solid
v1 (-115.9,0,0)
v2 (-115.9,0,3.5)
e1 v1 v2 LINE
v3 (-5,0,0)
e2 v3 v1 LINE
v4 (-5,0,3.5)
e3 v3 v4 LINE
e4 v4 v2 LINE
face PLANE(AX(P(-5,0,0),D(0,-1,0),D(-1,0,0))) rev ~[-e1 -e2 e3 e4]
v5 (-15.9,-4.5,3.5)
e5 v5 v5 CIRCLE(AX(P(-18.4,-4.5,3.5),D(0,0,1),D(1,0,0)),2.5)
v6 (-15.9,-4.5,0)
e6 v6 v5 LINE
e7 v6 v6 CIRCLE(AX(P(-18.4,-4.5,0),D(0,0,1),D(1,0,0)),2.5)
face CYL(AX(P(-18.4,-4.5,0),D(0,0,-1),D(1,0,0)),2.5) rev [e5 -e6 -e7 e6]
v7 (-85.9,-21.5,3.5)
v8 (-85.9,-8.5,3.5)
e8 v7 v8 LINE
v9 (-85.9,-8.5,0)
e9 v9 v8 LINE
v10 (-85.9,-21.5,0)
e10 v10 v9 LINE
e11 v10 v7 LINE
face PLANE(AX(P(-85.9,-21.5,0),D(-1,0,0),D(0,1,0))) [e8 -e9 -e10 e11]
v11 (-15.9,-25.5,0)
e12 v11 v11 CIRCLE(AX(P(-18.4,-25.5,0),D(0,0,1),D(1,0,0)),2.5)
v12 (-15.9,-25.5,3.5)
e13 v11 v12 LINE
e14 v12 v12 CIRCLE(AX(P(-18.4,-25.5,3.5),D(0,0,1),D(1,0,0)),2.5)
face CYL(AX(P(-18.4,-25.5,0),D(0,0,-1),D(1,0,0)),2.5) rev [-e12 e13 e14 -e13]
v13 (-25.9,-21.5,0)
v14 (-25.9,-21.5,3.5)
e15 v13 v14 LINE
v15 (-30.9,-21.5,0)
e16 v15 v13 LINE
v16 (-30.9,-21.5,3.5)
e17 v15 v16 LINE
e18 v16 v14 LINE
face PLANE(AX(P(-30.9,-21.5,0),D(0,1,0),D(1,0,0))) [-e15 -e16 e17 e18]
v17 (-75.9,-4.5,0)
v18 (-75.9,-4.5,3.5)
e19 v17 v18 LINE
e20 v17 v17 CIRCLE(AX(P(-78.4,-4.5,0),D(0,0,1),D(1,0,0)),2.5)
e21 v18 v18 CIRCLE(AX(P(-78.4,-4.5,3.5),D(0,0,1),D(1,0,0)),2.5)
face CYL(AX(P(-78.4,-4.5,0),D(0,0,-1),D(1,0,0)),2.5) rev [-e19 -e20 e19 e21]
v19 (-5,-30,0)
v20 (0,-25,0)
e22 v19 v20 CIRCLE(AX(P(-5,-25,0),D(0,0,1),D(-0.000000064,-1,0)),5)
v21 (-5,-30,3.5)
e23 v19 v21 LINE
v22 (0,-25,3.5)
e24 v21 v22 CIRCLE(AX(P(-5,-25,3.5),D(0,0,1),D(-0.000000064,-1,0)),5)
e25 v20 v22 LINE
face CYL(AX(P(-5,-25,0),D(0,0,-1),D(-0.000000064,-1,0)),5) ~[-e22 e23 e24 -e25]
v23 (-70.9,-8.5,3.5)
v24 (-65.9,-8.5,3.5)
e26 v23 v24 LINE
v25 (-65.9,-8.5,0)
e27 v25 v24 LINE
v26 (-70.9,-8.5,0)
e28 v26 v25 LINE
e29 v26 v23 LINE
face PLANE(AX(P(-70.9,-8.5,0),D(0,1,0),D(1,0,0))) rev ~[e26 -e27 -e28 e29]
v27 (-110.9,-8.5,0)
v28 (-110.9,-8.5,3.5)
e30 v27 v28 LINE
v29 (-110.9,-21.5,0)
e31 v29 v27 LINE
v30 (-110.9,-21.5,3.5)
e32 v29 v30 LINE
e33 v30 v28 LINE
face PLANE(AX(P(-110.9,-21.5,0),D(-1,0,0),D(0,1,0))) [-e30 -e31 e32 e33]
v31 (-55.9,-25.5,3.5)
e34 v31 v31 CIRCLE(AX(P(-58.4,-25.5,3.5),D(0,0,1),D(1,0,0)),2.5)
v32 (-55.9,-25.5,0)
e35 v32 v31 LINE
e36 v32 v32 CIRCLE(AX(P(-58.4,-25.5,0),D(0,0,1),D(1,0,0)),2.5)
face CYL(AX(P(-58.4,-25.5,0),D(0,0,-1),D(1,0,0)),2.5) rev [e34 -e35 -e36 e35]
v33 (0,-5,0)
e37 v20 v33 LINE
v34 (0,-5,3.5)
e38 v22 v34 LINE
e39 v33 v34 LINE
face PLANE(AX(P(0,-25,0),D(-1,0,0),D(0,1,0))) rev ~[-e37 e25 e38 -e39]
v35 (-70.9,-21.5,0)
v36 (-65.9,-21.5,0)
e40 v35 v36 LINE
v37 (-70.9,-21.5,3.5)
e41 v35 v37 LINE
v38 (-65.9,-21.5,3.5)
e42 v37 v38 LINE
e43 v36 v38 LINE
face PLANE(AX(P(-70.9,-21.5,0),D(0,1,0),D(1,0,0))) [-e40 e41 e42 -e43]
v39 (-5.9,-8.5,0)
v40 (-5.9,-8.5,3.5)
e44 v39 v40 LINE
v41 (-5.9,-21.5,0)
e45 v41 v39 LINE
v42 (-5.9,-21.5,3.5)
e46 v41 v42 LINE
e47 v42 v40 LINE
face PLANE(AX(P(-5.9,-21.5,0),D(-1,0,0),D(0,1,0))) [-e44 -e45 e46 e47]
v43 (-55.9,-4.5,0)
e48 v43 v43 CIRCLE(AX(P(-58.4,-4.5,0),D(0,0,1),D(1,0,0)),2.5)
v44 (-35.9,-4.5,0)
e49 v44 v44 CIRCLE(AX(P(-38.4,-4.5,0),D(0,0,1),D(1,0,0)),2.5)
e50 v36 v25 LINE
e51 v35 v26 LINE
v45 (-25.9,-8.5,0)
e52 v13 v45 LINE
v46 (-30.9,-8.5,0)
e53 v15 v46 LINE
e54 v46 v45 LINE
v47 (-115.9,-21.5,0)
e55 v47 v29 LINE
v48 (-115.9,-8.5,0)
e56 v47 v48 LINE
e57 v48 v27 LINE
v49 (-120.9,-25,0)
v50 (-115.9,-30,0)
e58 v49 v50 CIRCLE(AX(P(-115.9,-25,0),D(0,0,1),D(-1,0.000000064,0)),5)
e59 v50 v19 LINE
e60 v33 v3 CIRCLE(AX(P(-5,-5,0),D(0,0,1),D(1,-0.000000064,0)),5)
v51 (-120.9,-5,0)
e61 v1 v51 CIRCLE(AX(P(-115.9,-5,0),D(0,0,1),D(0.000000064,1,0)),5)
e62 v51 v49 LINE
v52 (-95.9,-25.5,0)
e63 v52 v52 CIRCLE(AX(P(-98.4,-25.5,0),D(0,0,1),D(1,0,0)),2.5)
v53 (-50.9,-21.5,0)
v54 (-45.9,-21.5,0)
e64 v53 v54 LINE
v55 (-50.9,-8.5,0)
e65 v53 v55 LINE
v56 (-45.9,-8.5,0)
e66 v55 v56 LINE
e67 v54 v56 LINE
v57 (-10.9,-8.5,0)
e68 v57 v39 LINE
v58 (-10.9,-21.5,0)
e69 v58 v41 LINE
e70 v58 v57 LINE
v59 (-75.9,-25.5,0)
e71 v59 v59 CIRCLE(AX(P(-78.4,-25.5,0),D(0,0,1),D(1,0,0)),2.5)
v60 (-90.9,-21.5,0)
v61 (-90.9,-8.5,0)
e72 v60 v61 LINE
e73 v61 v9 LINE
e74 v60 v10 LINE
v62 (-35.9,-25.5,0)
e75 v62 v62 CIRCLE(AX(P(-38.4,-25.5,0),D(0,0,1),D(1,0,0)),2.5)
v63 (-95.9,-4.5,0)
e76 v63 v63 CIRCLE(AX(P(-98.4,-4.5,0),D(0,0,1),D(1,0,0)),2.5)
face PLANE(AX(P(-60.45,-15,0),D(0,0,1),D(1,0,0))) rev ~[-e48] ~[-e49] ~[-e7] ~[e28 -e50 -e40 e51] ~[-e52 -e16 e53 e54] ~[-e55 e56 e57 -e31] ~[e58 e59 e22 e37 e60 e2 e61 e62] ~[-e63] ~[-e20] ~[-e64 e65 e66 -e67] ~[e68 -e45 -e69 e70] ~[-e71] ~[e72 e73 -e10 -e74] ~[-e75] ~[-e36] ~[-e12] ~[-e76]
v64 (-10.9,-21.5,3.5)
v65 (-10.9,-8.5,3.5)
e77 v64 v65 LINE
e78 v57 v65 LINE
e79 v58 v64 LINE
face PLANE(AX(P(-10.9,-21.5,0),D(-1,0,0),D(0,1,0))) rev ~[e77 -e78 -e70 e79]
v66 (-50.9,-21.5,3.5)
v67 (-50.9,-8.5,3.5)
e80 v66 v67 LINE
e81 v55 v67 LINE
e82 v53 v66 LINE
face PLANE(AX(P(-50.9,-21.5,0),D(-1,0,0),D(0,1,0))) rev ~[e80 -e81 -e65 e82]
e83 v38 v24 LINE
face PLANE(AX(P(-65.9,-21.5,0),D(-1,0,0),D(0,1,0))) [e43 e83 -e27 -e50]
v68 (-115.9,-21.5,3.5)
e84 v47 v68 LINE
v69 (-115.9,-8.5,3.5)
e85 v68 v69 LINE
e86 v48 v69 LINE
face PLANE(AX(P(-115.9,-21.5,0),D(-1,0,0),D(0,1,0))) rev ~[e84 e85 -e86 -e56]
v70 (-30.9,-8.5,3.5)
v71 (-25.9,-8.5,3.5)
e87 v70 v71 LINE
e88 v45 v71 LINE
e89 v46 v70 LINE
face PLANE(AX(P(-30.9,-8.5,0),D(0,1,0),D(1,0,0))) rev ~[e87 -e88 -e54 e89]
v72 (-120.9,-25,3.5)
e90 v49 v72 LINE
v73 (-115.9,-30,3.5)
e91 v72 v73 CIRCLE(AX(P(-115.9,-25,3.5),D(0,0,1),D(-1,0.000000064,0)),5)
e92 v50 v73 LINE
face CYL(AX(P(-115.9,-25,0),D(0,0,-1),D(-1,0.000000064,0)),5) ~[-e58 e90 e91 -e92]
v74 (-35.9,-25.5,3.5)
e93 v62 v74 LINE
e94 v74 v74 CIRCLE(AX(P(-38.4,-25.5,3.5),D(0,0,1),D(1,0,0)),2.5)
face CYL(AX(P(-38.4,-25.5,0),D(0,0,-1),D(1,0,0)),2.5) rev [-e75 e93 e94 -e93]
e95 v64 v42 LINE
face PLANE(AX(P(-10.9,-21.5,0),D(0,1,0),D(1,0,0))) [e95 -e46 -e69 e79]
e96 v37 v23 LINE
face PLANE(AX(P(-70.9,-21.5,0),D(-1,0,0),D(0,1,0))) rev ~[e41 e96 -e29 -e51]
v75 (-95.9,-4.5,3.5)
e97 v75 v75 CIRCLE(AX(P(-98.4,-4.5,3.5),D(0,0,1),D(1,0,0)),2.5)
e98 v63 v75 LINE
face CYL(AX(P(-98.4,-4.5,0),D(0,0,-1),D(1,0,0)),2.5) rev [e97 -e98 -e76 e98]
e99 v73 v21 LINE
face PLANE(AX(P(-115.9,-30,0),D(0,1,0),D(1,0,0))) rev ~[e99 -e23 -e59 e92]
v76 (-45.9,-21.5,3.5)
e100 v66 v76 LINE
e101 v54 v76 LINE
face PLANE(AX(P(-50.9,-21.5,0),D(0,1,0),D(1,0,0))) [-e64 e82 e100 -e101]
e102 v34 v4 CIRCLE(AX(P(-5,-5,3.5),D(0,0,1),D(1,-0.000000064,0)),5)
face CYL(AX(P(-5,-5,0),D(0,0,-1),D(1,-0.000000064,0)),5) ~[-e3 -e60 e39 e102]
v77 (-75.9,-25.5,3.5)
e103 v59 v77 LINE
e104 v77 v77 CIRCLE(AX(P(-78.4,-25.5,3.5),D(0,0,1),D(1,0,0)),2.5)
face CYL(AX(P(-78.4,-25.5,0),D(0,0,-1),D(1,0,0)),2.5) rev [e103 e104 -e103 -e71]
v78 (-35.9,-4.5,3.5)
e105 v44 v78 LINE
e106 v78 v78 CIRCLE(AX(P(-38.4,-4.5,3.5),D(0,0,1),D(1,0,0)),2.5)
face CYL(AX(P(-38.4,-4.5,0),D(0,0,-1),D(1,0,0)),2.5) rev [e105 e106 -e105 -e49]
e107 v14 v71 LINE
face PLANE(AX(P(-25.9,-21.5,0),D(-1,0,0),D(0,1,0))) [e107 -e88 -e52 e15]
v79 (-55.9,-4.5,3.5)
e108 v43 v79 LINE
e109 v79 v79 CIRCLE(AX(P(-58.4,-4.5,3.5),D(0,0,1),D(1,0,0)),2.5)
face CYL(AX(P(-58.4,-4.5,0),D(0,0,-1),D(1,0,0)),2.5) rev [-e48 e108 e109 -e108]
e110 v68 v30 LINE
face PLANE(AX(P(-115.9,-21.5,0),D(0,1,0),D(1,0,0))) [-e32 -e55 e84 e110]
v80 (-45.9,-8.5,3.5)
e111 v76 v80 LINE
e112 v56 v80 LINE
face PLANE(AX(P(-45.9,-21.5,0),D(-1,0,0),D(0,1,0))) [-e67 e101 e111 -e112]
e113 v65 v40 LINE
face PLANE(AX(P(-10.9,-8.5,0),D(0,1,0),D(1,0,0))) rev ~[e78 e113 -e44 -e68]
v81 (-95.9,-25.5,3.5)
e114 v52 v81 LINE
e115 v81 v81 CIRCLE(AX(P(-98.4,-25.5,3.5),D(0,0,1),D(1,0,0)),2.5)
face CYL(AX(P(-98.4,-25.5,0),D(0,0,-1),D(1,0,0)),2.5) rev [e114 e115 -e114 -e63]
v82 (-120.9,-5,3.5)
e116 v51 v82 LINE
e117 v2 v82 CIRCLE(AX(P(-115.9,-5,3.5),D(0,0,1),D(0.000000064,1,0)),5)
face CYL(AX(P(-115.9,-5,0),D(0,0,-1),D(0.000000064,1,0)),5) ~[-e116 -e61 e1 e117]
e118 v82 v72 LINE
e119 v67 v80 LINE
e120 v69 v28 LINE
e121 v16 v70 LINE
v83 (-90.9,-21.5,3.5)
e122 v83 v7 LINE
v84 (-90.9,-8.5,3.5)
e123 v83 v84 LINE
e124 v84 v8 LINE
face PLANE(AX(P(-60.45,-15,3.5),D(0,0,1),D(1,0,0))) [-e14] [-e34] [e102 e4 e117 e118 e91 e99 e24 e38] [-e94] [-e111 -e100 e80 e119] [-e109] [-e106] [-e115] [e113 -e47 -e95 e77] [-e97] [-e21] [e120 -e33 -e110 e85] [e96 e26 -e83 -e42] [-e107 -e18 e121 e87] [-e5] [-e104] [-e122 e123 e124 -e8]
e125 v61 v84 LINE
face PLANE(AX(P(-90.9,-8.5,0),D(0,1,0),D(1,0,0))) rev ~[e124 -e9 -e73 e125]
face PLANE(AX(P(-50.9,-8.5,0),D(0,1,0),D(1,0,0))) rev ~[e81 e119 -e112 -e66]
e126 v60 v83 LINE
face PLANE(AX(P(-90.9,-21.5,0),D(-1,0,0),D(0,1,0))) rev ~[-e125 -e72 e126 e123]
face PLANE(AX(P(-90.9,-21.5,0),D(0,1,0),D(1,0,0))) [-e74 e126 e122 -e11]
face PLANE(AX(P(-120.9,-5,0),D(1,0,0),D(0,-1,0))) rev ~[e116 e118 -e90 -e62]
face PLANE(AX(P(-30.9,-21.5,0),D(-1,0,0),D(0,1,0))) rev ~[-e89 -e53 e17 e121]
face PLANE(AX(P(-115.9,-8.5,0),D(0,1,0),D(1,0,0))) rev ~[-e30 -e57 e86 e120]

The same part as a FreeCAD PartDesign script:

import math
import FreeCAD as App
import Part
import Sketcher
Q = App.Units.Quantity


def add_polygon(sketch, points):
    """Adds a closed chain of lines whose ends are joined by coincident constraints."""
    first, n = sketch.GeometryCount, len(points)
    for a, b in zip(points, points[1:] + points[:1]):
        sketch.addGeometry(Part.LineSegment(App.Vector(*a, 0), App.Vector(*b, 0)), False)
    for i in range(n):
        sketch.addConstraint(Sketcher.Constraint("Coincident", first + i, 2, first + (i + 1) % n, 1))

doc = App.newDocument("Part")
body = doc.addObject("PartDesign::Body", "Body")

sketch1 = body.newObject("Sketcher::SketchObject", "Sketch")
sketch1.AttachmentSupport = (doc.getObject("XY_Plane"), [""])
sketch1.MapMode = "FlatFace"
sketch1.addGeometry(Part.ArcOfCircle(Part.Circle(App.Vector(-5, -5, 0), App.Vector(0, 0, 1), 5), math.radians(0), math.radians(90)), False)
sketch1.addGeometry(Part.LineSegment(App.Vector(-5, 0, 0), App.Vector(-115.9, 0, 0)), False)
sketch1.addGeometry(Part.ArcOfCircle(Part.Circle(App.Vector(-115.9, -5, 0), App.Vector(0, 0, 1), 5), math.radians(90), math.radians(180)), False)
sketch1.addGeometry(Part.LineSegment(App.Vector(-120.9, -5, 0), App.Vector(-120.9, -25, 0)), False)
sketch1.addGeometry(Part.ArcOfCircle(Part.Circle(App.Vector(-115.9, -25, 0), App.Vector(0, 0, 1), 5), math.radians(180), math.radians(270)), False)
sketch1.addGeometry(Part.LineSegment(App.Vector(-115.9, -30, 0), App.Vector(-5, -30, 0)), False)
sketch1.addGeometry(Part.ArcOfCircle(Part.Circle(App.Vector(-5, -25, 0), App.Vector(0, 0, 1), 5), math.radians(-90), math.radians(0)), False)
sketch1.addGeometry(Part.LineSegment(App.Vector(0, -25, 0), App.Vector(0, -5, 0)), False)
sketch1.addGeometry(Part.Circle(App.Vector(-98.4, -25.5, 0), App.Vector(0, 0, 1), 2.5), False)
sketch1.addGeometry(Part.Circle(App.Vector(-78.4, -25.5, 0), App.Vector(0, 0, 1), 2.5), False)
sketch1.addGeometry(Part.Circle(App.Vector(-58.4, -25.5, 0), App.Vector(0, 0, 1), 2.5), False)
sketch1.addGeometry(Part.Circle(App.Vector(-38.4, -25.5, 0), App.Vector(0, 0, 1), 2.5), False)
sketch1.addGeometry(Part.Circle(App.Vector(-18.4, -25.5, 0), App.Vector(0, 0, 1), 2.5), False)
add_polygon(sketch1, [(-110.9, -21.5), (-115.9, -21.5), (-115.9, -8.5), (-110.9, -8.5)])
add_polygon(sketch1, [(-85.9, -21.5), (-90.9, -21.5), (-90.9, -8.5), (-85.9, -8.5)])
add_polygon(sketch1, [(-65.9, -21.5), (-70.9, -21.5), (-70.9, -8.5), (-65.9, -8.5)])
sketch1.addGeometry(Part.Circle(App.Vector(-98.4, -4.5, 0), App.Vector(0, 0, 1), 2.5), False)
sketch1.addGeometry(Part.Circle(App.Vector(-78.4, -4.5, 0), App.Vector(0, 0, 1), 2.5), False)
add_polygon(sketch1, [(-45.9, -21.5), (-50.9, -21.5), (-50.9, -8.5), (-45.9, -8.5)])
add_polygon(sketch1, [(-25.9, -21.5), (-30.9, -21.5), (-30.9, -8.5), (-25.9, -8.5)])
add_polygon(sketch1, [(-5.9, -21.5), (-10.9, -21.5), (-10.9, -8.5), (-5.9, -8.5)])
sketch1.addGeometry(Part.Circle(App.Vector(-58.4, -4.5, 0), App.Vector(0, 0, 1), 2.5), False)
sketch1.addGeometry(Part.Circle(App.Vector(-38.4, -4.5, 0), App.Vector(0, 0, 1), 2.5), False)
sketch1.addGeometry(Part.Circle(App.Vector(-18.4, -4.5, 0), App.Vector(0, 0, 1), 2.5), False)
sketch1.addConstraint([
    Sketcher.Constraint("Tangent", 0, 2, 1, 1),
    Sketcher.Constraint("Tangent", 1, 2, 2, 1),
    Sketcher.Constraint("Tangent", 2, 2, 3, 1),
    Sketcher.Constraint("Tangent", 3, 2, 4, 1),
    Sketcher.Constraint("Tangent", 4, 2, 5, 1),
    Sketcher.Constraint("Tangent", 5, 2, 6, 1),
    Sketcher.Constraint("Tangent", 6, 2, 7, 1),
    Sketcher.Constraint("Tangent", 7, 2, 0, 1),
    Sketcher.Constraint("Horizontal", 1),
    Sketcher.Constraint("Vertical", 3),
    Sketcher.Constraint("Horizontal", 5),
    Sketcher.Constraint("Vertical", 7),
    Sketcher.Constraint("Horizontal", 13),
    Sketcher.Constraint("Vertical", 14),
    Sketcher.Constraint("Horizontal", 15),
    Sketcher.Constraint("Vertical", 16),
    Sketcher.Constraint("Horizontal", 17),
    Sketcher.Constraint("Vertical", 18),
    Sketcher.Constraint("Horizontal", 19),
    Sketcher.Constraint("Vertical", 20),
    Sketcher.Constraint("Horizontal", 21),
    Sketcher.Constraint("Vertical", 22),
    Sketcher.Constraint("Horizontal", 23),
    Sketcher.Constraint("Vertical", 24),
    Sketcher.Constraint("Horizontal", 27),
    Sketcher.Constraint("Vertical", 28),
    Sketcher.Constraint("Horizontal", 29),
    Sketcher.Constraint("Vertical", 30),
    Sketcher.Constraint("Horizontal", 31),
    Sketcher.Constraint("Vertical", 32),
    Sketcher.Constraint("Horizontal", 33),
    Sketcher.Constraint("Vertical", 34),
    Sketcher.Constraint("Horizontal", 35),
    Sketcher.Constraint("Vertical", 36),
    Sketcher.Constraint("Horizontal", 37),
    Sketcher.Constraint("Vertical", 38),
    Sketcher.Constraint("Equal", 0, 2),
    Sketcher.Constraint("Equal", 2, 4),
    Sketcher.Constraint("Equal", 4, 6),
    Sketcher.Constraint("Equal", 8, 9),
    Sketcher.Constraint("Equal", 9, 10),
    Sketcher.Constraint("Equal", 10, 11),
    Sketcher.Constraint("Equal", 11, 12),
    Sketcher.Constraint("Equal", 12, 25),
    Sketcher.Constraint("Equal", 25, 26),
    Sketcher.Constraint("Equal", 26, 39),
    Sketcher.Constraint("Equal", 39, 40),
    Sketcher.Constraint("Equal", 40, 41),
    Sketcher.Constraint("PointOnObject", 0, 2, -1),
    Sketcher.Constraint("PointOnObject", 6, 2, -2),
    Sketcher.Constraint("Horizontal", 8, 3, 9, 3),
    Sketcher.Constraint("Horizontal", 9, 3, 10, 3),
    Sketcher.Constraint("Horizontal", 10, 3, 11, 3),
    Sketcher.Constraint("Horizontal", 11, 3, 12, 3),
    Sketcher.Constraint("Horizontal", 25, 3, 26, 3),
    Sketcher.Constraint("Horizontal", 26, 3, 39, 3),
    Sketcher.Constraint("Horizontal", 39, 3, 40, 3),
    Sketcher.Constraint("Horizontal", 40, 3, 41, 3),
    Sketcher.Constraint("Horizontal", 16, 2, 17, 2),
    Sketcher.Constraint("Horizontal", 15, 2, 18, 2),
    Sketcher.Constraint("Horizontal", 20, 2, 21, 2),
    Sketcher.Constraint("Horizontal", 19, 2, 22, 2),
    Sketcher.Constraint("Horizontal", 24, 2, 27, 2),
    Sketcher.Constraint("Horizontal", 23, 2, 28, 2),
    Sketcher.Constraint("Horizontal", 30, 2, 31, 2),
    Sketcher.Constraint("Horizontal", 29, 2, 32, 2),
    Sketcher.Constraint("Horizontal", 34, 2, 35, 2),
    Sketcher.Constraint("Horizontal", 33, 2, 36, 2),
    Sketcher.Constraint("Vertical", 8, 3, 25, 3),
    Sketcher.Constraint("Vertical", 9, 3, 26, 3),
    Sketcher.Constraint("Vertical", 10, 3, 39, 3),
    Sketcher.Constraint("Vertical", 11, 3, 40, 3),
    Sketcher.Constraint("Vertical", 12, 3, 41, 3),
    Sketcher.Constraint("Vertical", 4, 2, 13, 2),
    Sketcher.Constraint("Equal", 15, 17),
    Sketcher.Constraint("Equal", 19, 21),
    Sketcher.Constraint("Equal", 23, 27),
    Sketcher.Constraint("Equal", 29, 31),
    Sketcher.Constraint("Equal", 33, 35),
    Sketcher.Constraint("Diameter", 8, Q("5 mm")),
    Sketcher.Constraint("Radius", 0, Q("5 mm")),
    Sketcher.Constraint("DistanceX", 13, 2, 13, 1, Q("5 mm")),
    Sketcher.Constraint("DistanceY", 3, 2, 3, 1, Q("20 mm")),
    Sketcher.Constraint("DistanceY", 14, 1, 14, 2, Q("13 mm")),
    Sketcher.Constraint("DistanceX", 1, 2, 1, 1, Q("110.9 mm")),
    Sketcher.Constraint("DistanceX", 8, 3, 9, 3, Q("20 mm")),
    Sketcher.Constraint("DistanceX", 9, 3, 10, 3, Q("20 mm")),
    Sketcher.Constraint("DistanceX", 10, 3, 11, 3, Q("20 mm")),
    Sketcher.Constraint("DistanceX", 11, 3, 12, 3, Q("20 mm")),
    Sketcher.Constraint("DistanceY", 8, 3, 25, 3, Q("21 mm")),
    Sketcher.Constraint("DistanceY", 15, 2, 25, 3, Q("4 mm")),
    Sketcher.Constraint("DistanceX", 16, 2, 17, 2, Q("20 mm")),
    Sketcher.Constraint("DistanceX", 20, 2, 21, 2, Q("15 mm")),
    Sketcher.Constraint("DistanceX", 24, 2, 27, 2, Q("15 mm")),
    Sketcher.Constraint("DistanceX", 30, 2, 31, 2, Q("15 mm")),
    Sketcher.Constraint("DistanceX", 34, 2, 35, 2, Q("15 mm")),
    Sketcher.Constraint("DistanceX", 8, 3, -1, 1, Q("98.4 mm")),
    Sketcher.Constraint("DistanceY", 8, 3, -1, 1, Q("25.5 mm")),
])
pad1 = body.newObject("PartDesign::Pad", "Pad")
pad1.Profile = sketch1
pad1.Length = 3.5

doc.recompute()
